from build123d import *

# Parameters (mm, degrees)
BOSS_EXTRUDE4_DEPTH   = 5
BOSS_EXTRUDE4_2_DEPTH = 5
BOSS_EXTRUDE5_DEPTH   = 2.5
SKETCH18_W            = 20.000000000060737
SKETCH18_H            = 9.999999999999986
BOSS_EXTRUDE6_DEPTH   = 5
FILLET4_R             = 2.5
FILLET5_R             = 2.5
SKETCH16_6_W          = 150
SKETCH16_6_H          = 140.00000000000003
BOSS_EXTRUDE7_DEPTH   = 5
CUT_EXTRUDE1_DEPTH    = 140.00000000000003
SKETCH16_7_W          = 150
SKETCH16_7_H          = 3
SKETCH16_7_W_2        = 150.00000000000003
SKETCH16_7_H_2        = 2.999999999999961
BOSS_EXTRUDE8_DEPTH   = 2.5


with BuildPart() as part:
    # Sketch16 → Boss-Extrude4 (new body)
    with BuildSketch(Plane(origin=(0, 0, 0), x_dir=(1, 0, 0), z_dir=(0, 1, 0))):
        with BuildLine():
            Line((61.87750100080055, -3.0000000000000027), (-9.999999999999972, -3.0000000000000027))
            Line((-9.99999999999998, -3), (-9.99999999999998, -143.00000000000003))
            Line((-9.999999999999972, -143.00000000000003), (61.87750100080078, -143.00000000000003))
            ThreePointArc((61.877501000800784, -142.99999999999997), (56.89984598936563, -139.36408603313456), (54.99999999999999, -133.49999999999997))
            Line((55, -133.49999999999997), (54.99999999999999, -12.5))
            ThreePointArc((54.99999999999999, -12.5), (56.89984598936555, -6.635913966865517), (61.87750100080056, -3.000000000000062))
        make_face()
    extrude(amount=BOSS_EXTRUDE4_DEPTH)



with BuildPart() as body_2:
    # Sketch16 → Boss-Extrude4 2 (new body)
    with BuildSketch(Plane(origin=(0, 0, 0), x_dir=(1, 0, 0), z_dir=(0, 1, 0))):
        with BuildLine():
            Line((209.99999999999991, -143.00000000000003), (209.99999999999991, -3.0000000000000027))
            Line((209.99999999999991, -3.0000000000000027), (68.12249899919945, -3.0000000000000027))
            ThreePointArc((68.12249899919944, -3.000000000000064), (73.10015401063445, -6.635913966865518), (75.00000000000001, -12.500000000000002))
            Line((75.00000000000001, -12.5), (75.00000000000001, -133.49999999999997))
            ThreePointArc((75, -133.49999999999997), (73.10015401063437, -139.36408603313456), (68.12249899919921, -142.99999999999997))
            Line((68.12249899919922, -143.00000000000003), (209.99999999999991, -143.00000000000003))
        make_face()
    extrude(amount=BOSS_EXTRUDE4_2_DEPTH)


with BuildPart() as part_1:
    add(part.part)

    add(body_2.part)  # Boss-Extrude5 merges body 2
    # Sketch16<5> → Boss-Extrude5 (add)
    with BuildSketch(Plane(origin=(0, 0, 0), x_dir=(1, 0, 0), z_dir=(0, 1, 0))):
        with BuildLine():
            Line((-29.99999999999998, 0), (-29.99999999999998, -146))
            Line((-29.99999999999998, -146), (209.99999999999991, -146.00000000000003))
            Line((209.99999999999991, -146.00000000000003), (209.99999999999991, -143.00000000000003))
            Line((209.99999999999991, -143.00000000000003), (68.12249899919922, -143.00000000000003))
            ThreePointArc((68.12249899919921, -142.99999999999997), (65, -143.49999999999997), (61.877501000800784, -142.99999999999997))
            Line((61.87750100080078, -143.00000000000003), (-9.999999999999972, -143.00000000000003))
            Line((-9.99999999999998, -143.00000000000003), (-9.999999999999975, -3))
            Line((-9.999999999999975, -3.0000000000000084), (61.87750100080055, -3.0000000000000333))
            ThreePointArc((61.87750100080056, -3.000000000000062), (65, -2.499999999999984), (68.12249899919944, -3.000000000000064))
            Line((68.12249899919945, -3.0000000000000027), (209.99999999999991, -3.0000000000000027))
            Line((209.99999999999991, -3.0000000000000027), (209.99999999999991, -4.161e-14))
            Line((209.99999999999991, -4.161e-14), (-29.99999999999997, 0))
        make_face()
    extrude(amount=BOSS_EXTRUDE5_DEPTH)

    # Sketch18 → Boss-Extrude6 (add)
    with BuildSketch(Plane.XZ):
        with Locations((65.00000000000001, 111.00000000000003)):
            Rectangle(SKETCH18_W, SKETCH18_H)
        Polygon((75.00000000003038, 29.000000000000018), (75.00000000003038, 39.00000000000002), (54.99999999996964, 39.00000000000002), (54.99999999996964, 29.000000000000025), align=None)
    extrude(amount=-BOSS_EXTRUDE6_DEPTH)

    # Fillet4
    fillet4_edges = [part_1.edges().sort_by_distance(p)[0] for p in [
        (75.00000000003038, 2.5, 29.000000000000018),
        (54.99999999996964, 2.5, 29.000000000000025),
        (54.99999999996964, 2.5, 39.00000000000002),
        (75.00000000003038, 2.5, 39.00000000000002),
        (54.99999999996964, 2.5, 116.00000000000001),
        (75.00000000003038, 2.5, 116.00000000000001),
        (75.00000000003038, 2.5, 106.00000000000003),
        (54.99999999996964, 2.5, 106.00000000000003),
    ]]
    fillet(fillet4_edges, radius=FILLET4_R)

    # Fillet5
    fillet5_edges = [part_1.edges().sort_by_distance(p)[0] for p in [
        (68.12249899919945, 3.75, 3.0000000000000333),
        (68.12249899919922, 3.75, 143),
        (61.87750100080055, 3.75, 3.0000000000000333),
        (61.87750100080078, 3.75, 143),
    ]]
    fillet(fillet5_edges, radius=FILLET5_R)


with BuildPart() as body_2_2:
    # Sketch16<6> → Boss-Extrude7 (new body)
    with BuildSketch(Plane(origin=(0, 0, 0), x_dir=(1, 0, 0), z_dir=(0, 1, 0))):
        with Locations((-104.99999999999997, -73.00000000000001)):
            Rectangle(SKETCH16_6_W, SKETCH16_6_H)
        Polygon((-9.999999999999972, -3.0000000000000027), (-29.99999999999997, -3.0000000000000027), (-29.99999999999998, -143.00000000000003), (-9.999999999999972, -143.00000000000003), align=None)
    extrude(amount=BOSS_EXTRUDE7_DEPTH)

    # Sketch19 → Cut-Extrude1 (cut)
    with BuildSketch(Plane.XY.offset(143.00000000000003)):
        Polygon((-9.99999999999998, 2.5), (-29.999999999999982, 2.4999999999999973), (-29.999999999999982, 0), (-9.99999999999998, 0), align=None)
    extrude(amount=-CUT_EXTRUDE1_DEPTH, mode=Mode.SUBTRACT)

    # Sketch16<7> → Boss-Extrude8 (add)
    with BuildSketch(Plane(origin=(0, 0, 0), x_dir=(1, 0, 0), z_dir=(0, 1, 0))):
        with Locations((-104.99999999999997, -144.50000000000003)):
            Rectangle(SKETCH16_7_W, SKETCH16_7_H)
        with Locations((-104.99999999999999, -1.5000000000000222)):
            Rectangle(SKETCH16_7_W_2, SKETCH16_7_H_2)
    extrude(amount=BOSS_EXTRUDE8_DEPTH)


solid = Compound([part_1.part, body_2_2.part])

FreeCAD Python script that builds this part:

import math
import FreeCAD as App
import Part
import Sketcher
from FreeCAD import Vector
Q = App.Units.Quantity


def edges_at(feature, points):
    """Names of the edges that pass closest to the given points."""
    edges = feature.Shape.Edges
    near = lambda p: min(range(len(edges)), key=lambda i: edges[i].distToShape(Part.Vertex(*p))[0])
    return sorted({f"Edge{near(p) + 1}" for p in points})

doc = App.newDocument("Part")
params = doc.addObject("Spreadsheet::Sheet", "Params")
for row, (alias, value) in enumerate([
    ("sketch1_radius", "10 mm"),
    ("sketch1_height", "140 mm"),
    ("sketch1_height2", "121 mm"),
    ("pad1_length", "5 mm"),
    ("sketch2_radius", "10 mm"),
    ("sketch2_height", "140 mm"),
    ("sketch2_height2", "121 mm"),
    ("pad2_length", "5 mm"),
    ("sketch3_radius", "10 mm"),
    ("sketch3_width", "240 mm"),
    ("sketch3_height", "146 mm"),
    ("sketch3_height2", "3 mm"),
    ("pad3_length", "2.5 mm"),
    ("sketch4_width", "20 mm"),
    ("sketch4_height", "10 mm"),
    ("pad4_length", "5 mm"),
    ("fillet_radius", "2.5 mm"),
    ("fillet2_radius", "2.5 mm"),
    ("sketch5_width", "170 mm"),
    ("sketch5_height", "140 mm"),
    ("pad5_length", "5 mm"),
    ("sketch6_width", "20 mm"),
    ("sketch6_height", "2.5 mm"),
    ("pocket1_length", "140 mm"),
    ("sketch7_width", "150 mm"),
    ("sketch7_height", "3 mm"),
    ("pad6_length", "2.5 mm"),
], start=1):
    params.set(f"A{row}", alias)
    params.set(f"B{row}", "=" + value)
    params.setAlias(f"B{row}", alias)

body = doc.addObject("PartDesign::Body", "Body")

# Sketch on XZ plane
sketch1 = doc.addObject("Sketcher::SketchObject", "Sketch")
body.addObject(sketch1)
sketch1.AttachmentSupport = (doc.XZ_Plane, [""])
sketch1.MapMode = "FlatFace"
sketch1.addGeometry([
    Part.LineSegment(Vector(62, 3, 0), Vector(-10, 3, 0)),  # 0
    Part.LineSegment(Vector(-10, 3, 0), Vector(-10, 143, 0)),  # 1
    Part.LineSegment(Vector(-10, 143, 0), Vector(62, 143, 0)),  # 2
    Part.ArcOfCircle(Part.Circle(Vector(65, 134, 0), Vector(0, 0, 1), 10), math.radians(108), math.radians(180)),  # 3
    Part.LineSegment(Vector(55, 134, 0), Vector(55, 12, 0)),  # 4
    Part.ArcOfCircle(Part.Circle(Vector(65, 12, 0), Vector(0, 0, 1), 10), math.radians(180), math.radians(252)),  # 5
], False)
sketch1.addConstraint([
    Sketcher.Constraint("Coincident", 0, 2, 1, 1),
    Sketcher.Constraint("Coincident", 1, 2, 2, 1),
    Sketcher.Constraint("Coincident", 2, 2, 3, 1),
    Sketcher.Constraint("Tangent", 3, 2, 4, 1),
    Sketcher.Constraint("Tangent", 4, 2, 5, 1),
    Sketcher.Constraint("Coincident", 5, 2, 0, 1),
    Sketcher.Constraint("Horizontal", 0),
    Sketcher.Constraint("Vertical", 1),
    Sketcher.Constraint("Horizontal", 2),
    Sketcher.Constraint("Vertical", 4),
    Sketcher.Constraint("Equal", 3, 5),
    Sketcher.Constraint("Vertical", 2, 2, 5, 2),
    Sketcher.Constraint("Radius", 3, Q("10 mm")),
    Sketcher.Constraint("DistanceY", 1, 1, 1, 2, Q("140 mm")),
    Sketcher.Constraint("DistanceY", 4, 2, 4, 1, Q("121 mm")),
    Sketcher.Constraint("DistanceX", -1, 1, 3, 3, Q("65 mm")),
    Sketcher.Constraint("DistanceX", 0, 2, -1, 1, Q("10 mm")),
    Sketcher.Constraint("DistanceY", -1, 1, 0, 2, Q("3 mm")),
])
sketch1.setExpression("Constraints[12]", "Params.sketch1_radius")
sketch1.setExpression("Constraints[13]", "Params.sketch1_height")
sketch1.setExpression("Constraints[14]", "Params.sketch1_height2")
pad1 = doc.addObject("PartDesign::Pad", "Pad")
body.addObject(pad1)
pad1.Profile = sketch1
pad1.setExpression("Length", "Params.pad1_length")
pad1.Reversed = True
body2 = doc.addObject("PartDesign::Body", "Body001")

# Sketch on XZ plane
sketch2 = doc.addObject("Sketcher::SketchObject", "Sketch001")
body2.addObject(sketch2)
sketch2.AttachmentSupport = (doc.getObject("XZ_Plane001"), [""])
sketch2.MapMode = "FlatFace"
sketch2.addGeometry([
    Part.LineSegment(Vector(210, 143, 0), Vector(210, 3, 0)),  # 0
    Part.LineSegment(Vector(210, 3, 0), Vector(68, 3, 0)),  # 1
    Part.ArcOfCircle(Part.Circle(Vector(65, 12, 0), Vector(0, 0, 1), 10), math.radians(-72), math.radians(0)),  # 2
    Part.LineSegment(Vector(75, 12, 0), Vector(75, 134, 0)),  # 3
    Part.ArcOfCircle(Part.Circle(Vector(65, 134, 0), Vector(0, 0, 1), 10), math.radians(0), math.radians(72)),  # 4
    Part.LineSegment(Vector(68, 143, 0), Vector(210, 143, 0)),  # 5
], False)
sketch2.addConstraint([
    Sketcher.Constraint("Coincident", 0, 2, 1, 1),
    Sketcher.Constraint("Coincident", 1, 2, 2, 1),
    Sketcher.Constraint("Tangent", 2, 2, 3, 1),
    Sketcher.Constraint("Tangent", 3, 2, 4, 1),
    Sketcher.Constraint("Coincident", 4, 2, 5, 1),
    Sketcher.Constraint("Coincident", 5, 2, 0, 1),
    Sketcher.Constraint("Vertical", 0),
    Sketcher.Constraint("Horizontal", 1),
    Sketcher.Constraint("Vertical", 3),
    Sketcher.Constraint("Horizontal", 5),
    Sketcher.Constraint("Equal", 2, 4),
    Sketcher.Constraint("Vertical", 1, 2, 4, 2),
    Sketcher.Constraint("Radius", 2, Q("10 mm")),
    Sketcher.Constraint("DistanceY", 0, 2, 0, 1, Q("140 mm")),
    Sketcher.Constraint("DistanceY", 3, 1, 3, 2, Q("121 mm")),
    Sketcher.Constraint("DistanceX", -1, 1, 2, 3, Q("65 mm")),
    Sketcher.Constraint("DistanceX", -1, 1, 0, 2, Q("210 mm")),
    Sketcher.Constraint("DistanceY", -1, 1, 0, 2, Q("3 mm")),
])
sketch2.setExpression("Constraints[12]", "Params.sketch2_radius")
sketch2.setExpression("Constraints[13]", "Params.sketch2_height")
sketch2.setExpression("Constraints[14]", "Params.sketch2_height2")
pad2 = doc.addObject("PartDesign::Pad", "Pad001")
body2.addObject(pad2)
pad2.Profile = sketch2
pad2.setExpression("Length", "Params.pad2_length")
pad2.Reversed = True
body.AllowCompound = True
doc.recompute()

boolean = doc.addObject("PartDesign::Boolean", "Boolean")
body.addObject(boolean)
boolean.Type = "Fuse"
boolean.addObjects([body2])

# Sketch on XZ plane
sketch3 = doc.addObject("Sketcher::SketchObject", "Sketch002")
body.addObject(sketch3)
sketch3.AttachmentSupport = (doc.XZ_Plane, [""])
sketch3.MapMode = "FlatFace"
sketch3.addGeometry([
    Part.LineSegment(Vector(-30, 0, 0), Vector(-30, 146, 0)),  # 0
    Part.LineSegment(Vector(-30, 146, 0), Vector(210, 146, 0)),  # 1
    Part.LineSegment(Vector(210, 146, 0), Vector(210, 143, 0)),  # 2
    Part.LineSegment(Vector(210, 143, 0), Vector(68.1, 143, 0)),  # 3
    Part.ArcOfCircle(Part.Circle(Vector(65, 133.5, 0), Vector(0, 0, 1), 10), math.radians(72), math.radians(108)),  # 4
    Part.LineSegment(Vector(61.9, 143, 0), Vector(-10, 143, 0)),  # 5
    Part.LineSegment(Vector(-10, 143, 0), Vector(-10, 3, 0)),  # 6
    Part.LineSegment(Vector(-10, 3, 0), Vector(61.9, 3, 0)),  # 7
    Part.ArcOfCircle(Part.Circle(Vector(65, 12.5, 0), Vector(0, 0, 1), 10), math.radians(-108), math.radians(-72)),  # 8
    Part.LineSegment(Vector(68.1, 3, 0), Vector(210, 3, 0)),  # 9
    Part.LineSegment(Vector(210, 3, 0), Vector(210, 0, 0)),  # 10
    Part.LineSegment(Vector(210, 0, 0), Vector(-30, 0, 0)),  # 11
], False)
sketch3.addConstraint([
    Sketcher.Constraint("Coincident", 0, 2, 1, 1),
    Sketcher.Constraint("Coincident", 1, 2, 2, 1),
    Sketcher.Constraint("Coincident", 2, 2, 3, 1),
    Sketcher.Constraint("Coincident", 3, 2, 4, 1),
    Sketcher.Constraint("Coincident", 4, 2, 5, 1),
    Sketcher.Constraint("Coincident", 5, 2, 6, 1),
    Sketcher.Constraint("Coincident", 6, 2, 7, 1),
    Sketcher.Constraint("Coincident", 7, 2, 8, 1),
    Sketcher.Constraint("Coincident", 8, 2, 9, 1),
    Sketcher.Constraint("Coincident", 9, 2, 10, 1),
    Sketcher.Constraint("Coincident", 10, 2, 11, 1),
    Sketcher.Constraint("Coincident", 11, 2, 0, 1),
    Sketcher.Constraint("Vertical", 0),
    Sketcher.Constraint("Horizontal", 1),
    Sketcher.Constraint("Vertical", 2),
    Sketcher.Constraint("Horizontal", 3),
    Sketcher.Constraint("Horizontal", 5),
    Sketcher.Constraint("Vertical", 6),
    Sketcher.Constraint("Horizontal", 7),
    Sketcher.Constraint("Horizontal", 9),
    Sketcher.Constraint("Vertical", 10),
    Sketcher.Constraint("Horizontal", 11),
    Sketcher.Constraint("Equal", 4, 8),
    Sketcher.Constraint("PointOnObject", 10, 2, -1),
    Sketcher.Constraint("Horizontal", 3, 2, 4, 2),
    Sketcher.Constraint("Horizontal", 7, 2, 8, 2),
    Sketcher.Constraint("Vertical", 4, 3, 8, 3),
    Sketcher.Constraint("Vertical", 4, 2, 7, 2),
    Sketcher.Constraint("Vertical", 2, 2, 9, 2),
    Sketcher.Constraint("Equal", 2, 10),
    Sketcher.Constraint("Radius", 4, Q("10 mm")),
    Sketcher.Constraint("DistanceX", 1, 1, 1, 2, Q("240 mm")),
    Sketcher.Constraint("DistanceY", 0, 1, 0, 2, Q("146 mm")),
    Sketcher.Constraint("DistanceY", 2, 2, 2, 1, Q("3 mm")),
    Sketcher.Constraint("DistanceX", -1, 1, 4, 3, Q("65 mm")),
    Sketcher.Constraint("DistanceX", 0, 2, -1, 1, Q("30 mm")),
    Sketcher.Constraint("DistanceX", 5, 2, -1, 1, Q("10 mm")),
    Sketcher.Constraint("DistanceY", 8, 3, 4, 3, Q("121 mm")),
])
sketch3.setExpression("Constraints[30]", "Params.sketch3_radius")
sketch3.setExpression("Constraints[31]", "Params.sketch3_width")
sketch3.setExpression("Constraints[32]", "Params.sketch3_height")
sketch3.setExpression("Constraints[33]", "Params.sketch3_height2")
pad3 = doc.addObject("PartDesign::Pad", "Pad002")
body.addObject(pad3)
pad3.Profile = sketch3
pad3.setExpression("Length", "Params.pad3_length")
pad3.Reversed = True

# Sketch on XZ plane
sketch4 = doc.addObject("Sketcher::SketchObject", "Sketch003")
body.addObject(sketch4)
sketch4.AttachmentSupport = (doc.XZ_Plane, [""])
sketch4.MapMode = "FlatFace"
sketch4.addGeometry([
    Part.LineSegment(Vector(55, 116, 0), Vector(55, 106, 0)),  # 0
    Part.LineSegment(Vector(55, 106, 0), Vector(75, 106, 0)),  # 1
    Part.LineSegment(Vector(75, 106, 0), Vector(75, 116, 0)),  # 2
    Part.LineSegment(Vector(75, 116, 0), Vector(55, 116, 0)),  # 3
    Part.LineSegment(Vector(75, 29, 0), Vector(75, 39, 0)),  # 4
    Part.LineSegment(Vector(75, 39, 0), Vector(55, 39, 0)),  # 5
    Part.LineSegment(Vector(55, 39, 0), Vector(55, 29, 0)),  # 6
    Part.LineSegment(Vector(55, 29, 0), Vector(75, 29, 0)),  # 7
], False)
sketch4.addConstraint([
    Sketcher.Constraint("Coincident", 0, 2, 1, 1),
    Sketcher.Constraint("Coincident", 1, 2, 2, 1),
    Sketcher.Constraint("Coincident", 2, 2, 3, 1),
    Sketcher.Constraint("Coincident", 3, 2, 0, 1),
    Sketcher.Constraint("Coincident", 4, 2, 5, 1),
    Sketcher.Constraint("Coincident", 5, 2, 6, 1),
    Sketcher.Constraint("Coincident", 6, 2, 7, 1),
    Sketcher.Constraint("Coincident", 7, 2, 4, 1),
    Sketcher.Constraint("Vertical", 0),
    Sketcher.Constraint("Horizontal", 1),
    Sketcher.Constraint("Vertical", 2),
    Sketcher.Constraint("Horizontal", 3),
    Sketcher.Constraint("Vertical", 4),
    Sketcher.Constraint("Horizontal", 5),
    Sketcher.Constraint("Vertical", 6),
    Sketcher.Constraint("Horizontal", 7),
    Sketcher.Constraint("Vertical", 2, 2, 4, 2),
    Sketcher.Constraint("Vertical", 3, 2, 5, 2),
    Sketcher.Constraint("Equal", 2, 4),
    Sketcher.Constraint("DistanceX", 1, 1, 1, 2, Q("20 mm")),
    Sketcher.Constraint("DistanceY", 0, 2, 0, 1, Q("10 mm")),
    Sketcher.Constraint("DistanceX", -1, 1, 0, 2, Q("55 mm")),
    Sketcher.Constraint("DistanceY", -1, 1, 0, 2, Q("106 mm")),
    Sketcher.Constraint("DistanceY", -1, 1, 4, 2, Q("39 mm")),
])
sketch4.setExpression("Constraints[19]", "Params.sketch4_width")
sketch4.setExpression("Constraints[20]", "Params.sketch4_height")
pad4 = doc.addObject("PartDesign::Pad", "Pad003")
body.addObject(pad4)
pad4.Profile = sketch4
pad4.setExpression("Length", "Params.pad4_length")
pad4.Reversed = True
doc.recompute()

fillet = doc.addObject("PartDesign::Fillet", "Fillet")
body.addObject(fillet)
fillet.Base = (pad4, edges_at(pad4, [
    (75, 2.5, 29),
    (55, 2.5, 29),
    (55, 2.5, 39),
    (75, 2.5, 39),
    (55, 2.5, 116),
    (75, 2.5, 116),
    (75, 2.5, 106),
    (55, 2.5, 106),
]))
fillet.setExpression("Radius", "Params.fillet_radius")
doc.recompute()

fillet2 = doc.addObject("PartDesign::Fillet", "Fillet001")
body.addObject(fillet2)
fillet2.Base = (fillet, edges_at(fillet, [
    (68.122, 3.75, 3),
    (68.122, 3.75, 143),
    (61.878, 3.75, 3),
    (61.878, 3.75, 143),
]))
fillet2.setExpression("Radius", "Params.fillet2_radius")
body3 = doc.addObject("PartDesign::Body", "Body002")

# Sketch on XZ plane
sketch5 = doc.addObject("Sketcher::SketchObject", "Sketch004")
body3.addObject(sketch5)
sketch5.AttachmentSupport = (doc.getObject("XZ_Plane002"), [""])
sketch5.MapMode = "FlatFace"
sketch5.addGeometry([
    Part.LineSegment(Vector(-180, 3, 0), Vector(-180, 143, 0)),
    Part.LineSegment(Vector(-180, 143, 0), Vector(-10, 143, 0)),
    Part.LineSegment(Vector(-10, 143, 0), Vector(-10, 3, 0)),
    Part.LineSegment(Vector(-10, 3, 0), Vector(-180, 3, 0)),
], False)
sketch5.addConstraint([
    Sketcher.Constraint("Coincident", 0, 2, 1, 1),
    Sketcher.Constraint("Coincident", 1, 2, 2, 1),
    Sketcher.Constraint("Coincident", 2, 2, 3, 1),
    Sketcher.Constraint("Coincident", 3, 2, 0, 1),
    Sketcher.Constraint("Vertical", 0),
    Sketcher.Constraint("Horizontal", 1),
    Sketcher.Constraint("Vertical", 2),
    Sketcher.Constraint("Horizontal", 3),
    Sketcher.Constraint("DistanceX", 1, 1, 1, 2, Q("170 mm")),
    Sketcher.Constraint("DistanceY", 0, 1, 0, 2, Q("140 mm")),
    Sketcher.Constraint("DistanceX", 0, 2, -1, 1, Q("180 mm")),
    Sketcher.Constraint("DistanceY", -1, 1, 0, 2, Q("143 mm")),
])
sketch5.setExpression("Constraints[8]", "Params.sketch5_width")
sketch5.setExpression("Constraints[9]", "Params.sketch5_height")
pad5 = doc.addObject("PartDesign::Pad", "Pad004")
body3.addObject(pad5)
pad5.Profile = sketch5
pad5.setExpression("Length", "Params.pad5_length")
pad5.Reversed = True

# Sketch on XY plane
sketch6 = doc.addObject("Sketcher::SketchObject", "Sketch005")
body3.addObject(sketch6)
sketch6.AttachmentSupport = (doc.getObject("XY_Plane002"), [""])
sketch6.MapMode = "FlatFace"
sketch6.AttachmentOffset = App.Placement(Vector(0, 0, 143), App.Rotation())
sketch6.addGeometry([
    Part.LineSegment(Vector(-10, 2.5, 0), Vector(-30, 2.5, 0)),
    Part.LineSegment(Vector(-30, 2.5, 0), Vector(-30, 0, 0)),
    Part.LineSegment(Vector(-30, 0, 0), Vector(-10, 0, 0)),
    Part.LineSegment(Vector(-10, 0, 0), Vector(-10, 2.5, 0)),
], False)
sketch6.addConstraint([
    Sketcher.Constraint("Coincident", 0, 2, 1, 1),
    Sketcher.Constraint("Coincident", 1, 2, 2, 1),
    Sketcher.Constraint("Coincident", 2, 2, 3, 1),
    Sketcher.Constraint("Coincident", 3, 2, 0, 1),
    Sketcher.Constraint("Horizontal", 0),
    Sketcher.Constraint("Vertical", 1),
    Sketcher.Constraint("Horizontal", 2),
    Sketcher.Constraint("Vertical", 3),
    Sketcher.Constraint("PointOnObject", 1, 2, -1),
    Sketcher.Constraint("DistanceX", 0, 2, 0, 1, Q("20 mm")),
    Sketcher.Constraint("DistanceY", 1, 2, 1, 1, Q("2.5 mm")),
    Sketcher.Constraint("DistanceX", 0, 2, -1, 1, Q("30 mm")),
])
sketch6.setExpression("Constraints[9]", "Params.sketch6_width")
sketch6.setExpression("Constraints[10]", "Params.sketch6_height")
pocket1 = doc.addObject("PartDesign::Pocket", "Pocket")
body3.addObject(pocket1)
pocket1.Profile = sketch6
pocket1.setExpression("Length", "Params.pocket1_length")

# Sketch on XZ plane
sketch7 = doc.addObject("Sketcher::SketchObject", "Sketch006")
body3.addObject(sketch7)
sketch7.AttachmentSupport = (doc.getObject("XZ_Plane002"), [""])
sketch7.MapMode = "FlatFace"
sketch7.addGeometry([
    Part.LineSegment(Vector(-180, 143, 0), Vector(-180, 146, 0)),  # 0
    Part.LineSegment(Vector(-180, 146, 0), Vector(-30, 146, 0)),  # 1
    Part.LineSegment(Vector(-30, 146, 0), Vector(-30, 143, 0)),  # 2
    Part.LineSegment(Vector(-30, 143, 0), Vector(-180, 143, 0)),  # 3
    Part.LineSegment(Vector(-180, 0, 0), Vector(-180, 3, 0)),  # 4
    Part.LineSegment(Vector(-180, 3, 0), Vector(-30, 3, 0)),  # 5
    Part.LineSegment(Vector(-30, 3, 0), Vector(-30, 0, 0)),  # 6
    Part.LineSegment(Vector(-30, 0, 0), Vector(-180, 0, 0)),  # 7
], False)
sketch7.addConstraint([
    Sketcher.Constraint("Coincident", 0, 2, 1, 1),
    Sketcher.Constraint("Coincident", 1, 2, 2, 1),
    Sketcher.Constraint("Coincident", 2, 2, 3, 1),
    Sketcher.Constraint("Coincident", 3, 2, 0, 1),
    Sketcher.Constraint("Coincident", 4, 2, 5, 1),
    Sketcher.Constraint("Coincident", 5, 2, 6, 1),
    Sketcher.Constraint("Coincident", 6, 2, 7, 1),
    Sketcher.Constraint("Coincident", 7, 2, 4, 1),
    Sketcher.Constraint("Vertical", 0),
    Sketcher.Constraint("Horizontal", 1),
    Sketcher.Constraint("Vertical", 2),
    Sketcher.Constraint("Horizontal", 3),
    Sketcher.Constraint("Vertical", 4),
    Sketcher.Constraint("Horizontal", 5),
    Sketcher.Constraint("Vertical", 6),
    Sketcher.Constraint("Horizontal", 7),
    Sketcher.Constraint("PointOnObject", 6, 2, -1),
    Sketcher.Constraint("Vertical", 3, 2, 4, 2),
    Sketcher.Constraint("Vertical", 2, 2, 5, 2),
    Sketcher.Constraint("Equal", 2, 4),
    Sketcher.Constraint("DistanceX", 1, 1, 1, 2, Q("150 mm")),
    Sketcher.Constraint("DistanceY", 0, 1, 0, 2, Q("3 mm")),
    Sketcher.Constraint("DistanceX", 0, 2, -1, 1, Q("180 mm")),
    Sketcher.Constraint("DistanceY", -1, 1, 0, 2, Q("146 mm")),
])
sketch7.setExpression("Constraints[20]", "Params.sketch7_width")
sketch7.setExpression("Constraints[21]", "Params.sketch7_height")
pad6 = doc.addObject("PartDesign::Pad", "Pad005")
body3.addObject(pad6)
pad6.Profile = sketch7
pad6.setExpression("Length", "Params.pad6_length")
pad6.Reversed = True

doc.recompute()
